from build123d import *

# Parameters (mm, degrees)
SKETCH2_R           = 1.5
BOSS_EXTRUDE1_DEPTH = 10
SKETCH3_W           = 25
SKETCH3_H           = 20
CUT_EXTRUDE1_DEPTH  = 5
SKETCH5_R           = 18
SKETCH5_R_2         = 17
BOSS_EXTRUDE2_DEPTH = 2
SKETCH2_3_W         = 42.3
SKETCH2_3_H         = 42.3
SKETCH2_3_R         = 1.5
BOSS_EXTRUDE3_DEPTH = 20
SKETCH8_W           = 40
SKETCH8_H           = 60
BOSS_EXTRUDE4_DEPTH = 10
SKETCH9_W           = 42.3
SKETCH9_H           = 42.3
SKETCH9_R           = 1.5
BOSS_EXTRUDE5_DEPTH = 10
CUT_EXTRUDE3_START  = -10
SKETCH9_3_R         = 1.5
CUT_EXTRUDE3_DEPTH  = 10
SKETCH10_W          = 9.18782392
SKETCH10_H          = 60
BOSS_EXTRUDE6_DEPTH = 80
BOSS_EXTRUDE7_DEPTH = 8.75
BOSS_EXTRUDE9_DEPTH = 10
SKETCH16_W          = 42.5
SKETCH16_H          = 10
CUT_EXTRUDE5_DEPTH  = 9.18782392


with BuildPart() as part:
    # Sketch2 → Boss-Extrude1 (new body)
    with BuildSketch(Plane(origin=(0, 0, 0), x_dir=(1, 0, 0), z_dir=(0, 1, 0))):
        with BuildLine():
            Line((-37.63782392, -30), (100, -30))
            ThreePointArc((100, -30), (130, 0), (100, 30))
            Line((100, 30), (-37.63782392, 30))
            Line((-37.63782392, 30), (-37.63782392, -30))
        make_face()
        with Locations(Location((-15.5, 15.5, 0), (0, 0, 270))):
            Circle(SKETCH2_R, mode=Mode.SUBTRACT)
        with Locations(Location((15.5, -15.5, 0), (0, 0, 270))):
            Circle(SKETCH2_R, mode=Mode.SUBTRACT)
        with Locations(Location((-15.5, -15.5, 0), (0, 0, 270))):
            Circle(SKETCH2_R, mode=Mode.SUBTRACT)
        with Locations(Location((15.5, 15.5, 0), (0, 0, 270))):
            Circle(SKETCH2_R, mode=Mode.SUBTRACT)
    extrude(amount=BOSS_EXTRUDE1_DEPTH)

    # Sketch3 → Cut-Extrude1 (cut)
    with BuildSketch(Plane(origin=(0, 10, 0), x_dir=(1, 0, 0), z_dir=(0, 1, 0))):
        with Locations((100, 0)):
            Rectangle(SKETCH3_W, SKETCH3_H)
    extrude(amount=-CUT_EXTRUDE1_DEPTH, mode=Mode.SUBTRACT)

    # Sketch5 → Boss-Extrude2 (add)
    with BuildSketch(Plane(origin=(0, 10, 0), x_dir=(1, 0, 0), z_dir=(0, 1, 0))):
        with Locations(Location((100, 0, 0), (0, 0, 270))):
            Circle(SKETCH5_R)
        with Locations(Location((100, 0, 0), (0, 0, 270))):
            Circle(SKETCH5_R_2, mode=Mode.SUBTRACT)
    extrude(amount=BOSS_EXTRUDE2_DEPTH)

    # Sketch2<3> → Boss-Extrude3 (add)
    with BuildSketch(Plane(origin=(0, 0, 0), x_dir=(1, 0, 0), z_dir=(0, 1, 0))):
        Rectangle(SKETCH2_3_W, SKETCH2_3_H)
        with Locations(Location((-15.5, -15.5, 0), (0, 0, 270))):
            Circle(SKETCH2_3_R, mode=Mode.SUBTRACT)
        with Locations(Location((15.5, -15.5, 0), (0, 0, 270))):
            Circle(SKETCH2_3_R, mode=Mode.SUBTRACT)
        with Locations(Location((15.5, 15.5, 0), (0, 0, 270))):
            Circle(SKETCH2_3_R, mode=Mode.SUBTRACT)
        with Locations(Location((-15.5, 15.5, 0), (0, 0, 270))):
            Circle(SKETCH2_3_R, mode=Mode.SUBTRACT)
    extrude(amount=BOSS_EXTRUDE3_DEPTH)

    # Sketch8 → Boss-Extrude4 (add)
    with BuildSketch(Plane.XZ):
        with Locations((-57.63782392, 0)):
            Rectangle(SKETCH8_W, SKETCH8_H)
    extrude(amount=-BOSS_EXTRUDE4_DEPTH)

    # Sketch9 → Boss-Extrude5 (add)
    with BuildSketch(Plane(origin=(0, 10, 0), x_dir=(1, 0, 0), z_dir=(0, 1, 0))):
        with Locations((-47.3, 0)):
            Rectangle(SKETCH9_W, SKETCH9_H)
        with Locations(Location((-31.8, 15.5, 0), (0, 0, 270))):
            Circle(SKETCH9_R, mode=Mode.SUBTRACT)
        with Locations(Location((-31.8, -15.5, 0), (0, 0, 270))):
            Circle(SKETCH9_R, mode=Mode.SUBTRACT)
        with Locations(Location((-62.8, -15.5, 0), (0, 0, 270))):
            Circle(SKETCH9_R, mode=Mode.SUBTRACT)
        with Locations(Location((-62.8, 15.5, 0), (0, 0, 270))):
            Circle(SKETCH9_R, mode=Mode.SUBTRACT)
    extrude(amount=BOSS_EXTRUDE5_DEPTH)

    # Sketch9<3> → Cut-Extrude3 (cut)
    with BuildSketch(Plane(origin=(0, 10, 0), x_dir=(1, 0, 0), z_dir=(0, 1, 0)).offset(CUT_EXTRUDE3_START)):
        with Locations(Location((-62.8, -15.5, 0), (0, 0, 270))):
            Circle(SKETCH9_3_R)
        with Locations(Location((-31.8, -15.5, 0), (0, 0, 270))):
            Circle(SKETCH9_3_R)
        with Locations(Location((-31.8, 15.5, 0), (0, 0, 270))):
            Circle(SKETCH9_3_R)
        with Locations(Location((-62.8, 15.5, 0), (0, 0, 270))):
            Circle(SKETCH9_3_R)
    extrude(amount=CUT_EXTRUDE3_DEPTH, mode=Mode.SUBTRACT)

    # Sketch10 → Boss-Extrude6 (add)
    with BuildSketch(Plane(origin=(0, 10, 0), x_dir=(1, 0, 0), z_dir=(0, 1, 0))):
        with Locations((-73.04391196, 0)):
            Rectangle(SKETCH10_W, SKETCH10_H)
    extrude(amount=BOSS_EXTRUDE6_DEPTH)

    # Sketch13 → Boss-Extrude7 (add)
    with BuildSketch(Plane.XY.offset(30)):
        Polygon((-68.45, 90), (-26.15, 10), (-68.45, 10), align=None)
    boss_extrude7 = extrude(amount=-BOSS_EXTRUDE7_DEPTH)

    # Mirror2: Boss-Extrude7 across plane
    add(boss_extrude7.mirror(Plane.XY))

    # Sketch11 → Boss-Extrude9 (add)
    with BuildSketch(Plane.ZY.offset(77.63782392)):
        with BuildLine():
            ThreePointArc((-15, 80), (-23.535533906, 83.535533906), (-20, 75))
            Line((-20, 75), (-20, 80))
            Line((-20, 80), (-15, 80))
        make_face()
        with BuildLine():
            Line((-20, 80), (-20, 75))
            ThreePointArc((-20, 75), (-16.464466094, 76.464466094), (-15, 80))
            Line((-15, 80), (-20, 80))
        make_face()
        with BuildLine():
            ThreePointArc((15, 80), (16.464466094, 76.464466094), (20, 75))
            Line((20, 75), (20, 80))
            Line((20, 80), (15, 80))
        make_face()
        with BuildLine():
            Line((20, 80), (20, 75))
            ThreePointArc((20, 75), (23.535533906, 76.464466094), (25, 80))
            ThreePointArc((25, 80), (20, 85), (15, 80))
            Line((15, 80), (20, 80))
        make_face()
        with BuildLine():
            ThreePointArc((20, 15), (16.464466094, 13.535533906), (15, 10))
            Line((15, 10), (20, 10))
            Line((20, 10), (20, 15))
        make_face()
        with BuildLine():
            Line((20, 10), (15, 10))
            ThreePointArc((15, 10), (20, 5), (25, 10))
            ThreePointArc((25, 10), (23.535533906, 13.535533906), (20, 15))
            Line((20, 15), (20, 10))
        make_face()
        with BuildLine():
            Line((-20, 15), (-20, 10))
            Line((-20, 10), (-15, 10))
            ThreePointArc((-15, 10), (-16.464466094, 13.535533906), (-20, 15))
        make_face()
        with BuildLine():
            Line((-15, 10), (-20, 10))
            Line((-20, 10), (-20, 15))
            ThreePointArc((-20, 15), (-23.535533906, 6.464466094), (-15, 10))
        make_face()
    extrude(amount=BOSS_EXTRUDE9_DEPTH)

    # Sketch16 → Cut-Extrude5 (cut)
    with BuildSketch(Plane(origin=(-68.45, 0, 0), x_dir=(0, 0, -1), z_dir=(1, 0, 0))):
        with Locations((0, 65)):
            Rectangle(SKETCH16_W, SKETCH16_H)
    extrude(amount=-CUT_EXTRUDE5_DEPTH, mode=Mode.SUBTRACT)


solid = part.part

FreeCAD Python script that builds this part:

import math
import FreeCAD as App
import Part
import Sketcher
from FreeCAD import Vector
Q = App.Units.Quantity


def add_polygon(sketch, points):
    """Adds a closed chain of lines whose ends are joined by coincident constraints."""
    first, n = sketch.GeometryCount, len(points)
    for a, b in zip(points, points[1:] + points[:1]):
        sketch.addGeometry(Part.LineSegment(App.Vector(*a, 0), App.Vector(*b, 0)), False)
    for i in range(n):
        sketch.addConstraint(Sketcher.Constraint("Coincident", first + i, 2, first + (i + 1) % n, 1))

doc = App.newDocument("Part")
params = doc.addObject("Spreadsheet::Sheet", "Params")
for row, (alias, value) in enumerate([
    ("sketch1_diameter", "3 mm"),
    ("sketch1_radius", "30 mm"),
    ("pad1_length", "10 mm"),
    ("sketch2_width", "25 mm"),
    ("sketch2_height", "20 mm"),
    ("pocket1_length", "5 mm"),
    ("sketch3_diameter", "36 mm"),
    ("sketch3_diameter2", "34 mm"),
    ("pad2_length", "2 mm"),
    ("sketch4_diameter", "3 mm"),
    ("sketch4_width", "42.3 mm"),
    ("pad3_length", "20 mm"),
    ("sketch5_width", "40 mm"),
    ("sketch5_height", "60 mm"),
    ("pad4_length", "10 mm"),
    ("sketch6_diameter", "3 mm"),
    ("sketch6_width", "42.3 mm"),
    ("pad5_length", "10 mm"),
    ("sketch7_diameter", "3 mm"),
    ("pocket2_length", "10 mm"),
    ("sketch8_height", "60 mm"),
    ("pad6_length", "80 mm"),
    ("sketch9_height", "80 mm"),
    ("sketch9_width", "42.3 mm"),
    ("pad7_length", "8.75 mm"),
    ("sketch10_radius", "5 mm"),
    ("pad8_length", "10 mm"),
    ("sketch11_width", "10 mm"),
    ("sketch11_height", "42.5 mm"),
    ("pocket3_length", "9.187824 mm"),
], start=1):
    params.set(f"A{row}", alias)
    params.set(f"B{row}", "=" + value)
    params.setAlias(f"B{row}", alias)

body = doc.addObject("PartDesign::Body", "Body")

# Sketch on XZ plane
sketch1 = body.newObject("Sketcher::SketchObject", "Sketch")
sketch1.AttachmentSupport = (doc.getObject("XZ_Plane"), [""])
sketch1.MapMode = "FlatFace"
sketch1.addGeometry([
    Part.LineSegment(Vector(-37.6, 30, 0), Vector(100, 30, 0)),  # 0
    Part.ArcOfCircle(Part.Circle(Vector(100, 0, 0), Vector(0, 0, 1), 30), math.radians(-90), math.radians(90)),  # 1
    Part.LineSegment(Vector(100, -30, 0), Vector(-37.6, -30, 0)),  # 2
    Part.LineSegment(Vector(-37.6, -30, 0), Vector(-37.6, 30, 0)),  # 3
    Part.Circle(Vector(-15.5, 15.5, 0), Vector(0, 0, 1), 1.5),  # 4
    Part.Circle(Vector(15.5, 15.5, 0), Vector(0, 0, 1), 1.5),  # 5
    Part.Circle(Vector(-15.5, -15.5, 0), Vector(0, 0, 1), 1.5),  # 6
    Part.Circle(Vector(15.5, -15.5, 0), Vector(0, 0, 1), 1.5),  # 7
], False)
sketch1.addConstraint([
    Sketcher.Constraint("Tangent", 0, 2, 1, 2),
    Sketcher.Constraint("Tangent", 1, 1, 2, 1),
    Sketcher.Constraint("Coincident", 2, 2, 3, 1),
    Sketcher.Constraint("Coincident", 3, 2, 0, 1),
    Sketcher.Constraint("Horizontal", 0),
    Sketcher.Constraint("Horizontal", 2),
    Sketcher.Constraint("Vertical", 3),
    Sketcher.Constraint("Equal", 4, 5),
    Sketcher.Constraint("Equal", 5, 6),
    Sketcher.Constraint("Equal", 6, 7),
    Sketcher.Constraint("Symmetric", 5, 3, 6, 3, -1, 1),
    Sketcher.Constraint("Symmetric", 4, 3, 7, 3, -1, 1),
    Sketcher.Constraint("Symmetric", 4, 3, 5, 3, -2),
    Sketcher.Constraint("PointOnObject", 1, 3, -1),
    Sketcher.Constraint("Diameter", 4, Q("3 mm")),
    Sketcher.Constraint("Radius", 1, Q("30 mm")),
    Sketcher.Constraint("DistanceX", -1, 1, 1, 3, Q("100 mm")),
    Sketcher.Constraint("DistanceX", 4, 3, 5, 3, Q("31 mm")),
    Sketcher.Constraint("DistanceY", 6, 3, 4, 3, Q("31 mm")),
    Sketcher.Constraint("DistanceX", 0, 1, 0, 2, Q("137.637824 mm")),
])
sketch1.setExpression("Constraints[14]", "Params.sketch1_diameter")
sketch1.setExpression("Constraints[15]", "Params.sketch1_radius")
pad1 = body.newObject("PartDesign::Pad", "Pad")
pad1.Profile = sketch1
pad1.setExpression("Length", "Params.pad1_length")
pad1.Reversed = True

# Sketch on XZ plane
sketch2 = body.newObject("Sketcher::SketchObject", "Sketch001")
sketch2.AttachmentSupport = (doc.getObject("XZ_Plane"), [""])
sketch2.MapMode = "FlatFace"
sketch2.AttachmentOffset = App.Placement(Vector(0, 0, -10), App.Rotation())
add_polygon(sketch2, [(88, -10), (88, 10), (112, 10), (112, -10)])  # lines 0-3
sketch2.addConstraint([
    Sketcher.Constraint("Vertical", 0),
    Sketcher.Constraint("Horizontal", 1),
    Sketcher.Constraint("Vertical", 2),
    Sketcher.Constraint("Horizontal", 3),
    Sketcher.Constraint("DistanceX", 1, 1, 1, 2, Q("25 mm")),
    Sketcher.Constraint("DistanceY", 0, 1, 0, 2, Q("20 mm")),
    Sketcher.Constraint("DistanceY", -1, 1, 0, 2, Q("10 mm")),
    Sketcher.Constraint("DistanceX", -1, 1, 0, 2, Q("87.5 mm")),
])
sketch2.setExpression("Constraints[8]", "Params.sketch2_width")
sketch2.setExpression("Constraints[9]", "Params.sketch2_height")
pocket1 = body.newObject("PartDesign::Pocket", "Pocket")
pocket1.Profile = sketch2
pocket1.setExpression("Length", "Params.pocket1_length")
pocket1.Reversed = True

# Sketch on XZ plane
sketch3 = body.newObject("Sketcher::SketchObject", "Sketch002")
sketch3.AttachmentSupport = (doc.getObject("XZ_Plane"), [""])
sketch3.MapMode = "FlatFace"
sketch3.AttachmentOffset = App.Placement(Vector(0, 0, -10), App.Rotation())
sketch3.addGeometry([
    Part.Circle(Vector(100, 0, 0), Vector(0, 0, 1), 18),
    Part.Circle(Vector(100, 0, 0), Vector(0, 0, 1), 17),
], False)
sketch3.addConstraint([
    Sketcher.Constraint("Coincident", 1, 3, 0, 3),
    Sketcher.Constraint("PointOnObject", 0, 3, -1),
    Sketcher.Constraint("Diameter", 0, Q("36 mm")),
    Sketcher.Constraint("Diameter", 1, Q("34 mm")),
    Sketcher.Constraint("DistanceX", -1, 1, 0, 3, Q("100 mm")),
])
sketch3.setExpression("Constraints[2]", "Params.sketch3_diameter")
sketch3.setExpression("Constraints[3]", "Params.sketch3_diameter2")
pad2 = body.newObject("PartDesign::Pad", "Pad001")
pad2.Profile = sketch3
pad2.setExpression("Length", "Params.pad2_length")
pad2.Reversed = True

# Sketch on XZ plane
sketch4 = body.newObject("Sketcher::SketchObject", "Sketch003")
sketch4.AttachmentSupport = (doc.getObject("XZ_Plane"), [""])
sketch4.MapMode = "FlatFace"
add_polygon(sketch4, [(-21.1, -21.1), (-21.1, 21.1), (21.1, 21.1), (21.1, -21.1)])  # lines 0-3
sketch4.addGeometry(Part.Circle(Vector(-15.5, 15.5, 0), Vector(0, 0, 1), 1.5), False)  # 4
sketch4.addGeometry(Part.Circle(Vector(15.5, 15.5, 0), Vector(0, 0, 1), 1.5), False)  # 5
sketch4.addGeometry(Part.Circle(Vector(-15.5, -15.5, 0), Vector(0, 0, 1), 1.5), False)  # 6
sketch4.addGeometry(Part.Circle(Vector(15.5, -15.5, 0), Vector(0, 0, 1), 1.5), False)  # 7
sketch4.addConstraint([
    Sketcher.Constraint("Vertical", 0),
    Sketcher.Constraint("Horizontal", 1),
    Sketcher.Constraint("Vertical", 2),
    Sketcher.Constraint("Horizontal", 3),
    Sketcher.Constraint("Equal", 4, 5),
    Sketcher.Constraint("Equal", 5, 6),
    Sketcher.Constraint("Equal", 6, 7),
    Sketcher.Constraint("Symmetric", 5, 3, 6, 3, -1, 1),
    Sketcher.Constraint("Symmetric", 4, 3, 7, 3, -1, 1),
    Sketcher.Constraint("Symmetric", 0, 2, 2, 2, -1, 1),
    Sketcher.Constraint("Symmetric", 4, 3, 5, 3, -2),
    Sketcher.Constraint("Equal", 3, 0),
    Sketcher.Constraint("Diameter", 4, Q("3 mm")),
    Sketcher.Constraint("DistanceX", 1, 1, 1, 2, Q("42.3 mm")),
    Sketcher.Constraint("DistanceX", 4, 3, 5, 3, Q("31 mm")),
    Sketcher.Constraint("DistanceY", 6, 3, 4, 3, Q("31 mm")),
])
sketch4.setExpression("Constraints[16]", "Params.sketch4_diameter")
sketch4.setExpression("Constraints[17]", "Params.sketch4_width")
pad3 = body.newObject("PartDesign::Pad", "Pad002")
pad3.Profile = sketch4
pad3.setExpression("Length", "Params.pad3_length")
pad3.Reversed = True

# Sketch on XZ plane
sketch5 = body.newObject("Sketcher::SketchObject", "Sketch004")
sketch5.AttachmentSupport = (doc.getObject("XZ_Plane"), [""])
sketch5.MapMode = "FlatFace"
add_polygon(sketch5, [(-78, 30), (-78, -30), (-38, -30), (-38, 30)])  # lines 0-3
sketch5.addConstraint([
    Sketcher.Constraint("Vertical", 0),
    Sketcher.Constraint("Horizontal", 1),
    Sketcher.Constraint("Vertical", 2),
    Sketcher.Constraint("Horizontal", 3),
    Sketcher.Constraint("DistanceX", 1, 1, 1, 2, Q("40 mm")),
    Sketcher.Constraint("DistanceY", 0, 2, 0, 1, Q("60 mm")),
    Sketcher.Constraint("DistanceY", 0, 2, -1, 1, Q("30 mm")),
    Sketcher.Constraint("DistanceX", 0, 2, -1, 1, Q("77.637824 mm")),
])
sketch5.setExpression("Constraints[8]", "Params.sketch5_width")
sketch5.setExpression("Constraints[9]", "Params.sketch5_height")
pad4 = body.newObject("PartDesign::Pad", "Pad003")
pad4.Profile = sketch5
pad4.setExpression("Length", "Params.pad4_length")
pad4.Reversed = True

# Sketch on XZ plane
sketch6 = body.newObject("Sketcher::SketchObject", "Sketch005")
sketch6.AttachmentSupport = (doc.getObject("XZ_Plane"), [""])
sketch6.MapMode = "FlatFace"
sketch6.AttachmentOffset = App.Placement(Vector(0, 0, -10), App.Rotation())
add_polygon(sketch6, [(-68.5, -21.1), (-68.5, 21.1), (-26.1, 21.1), (-26.1, -21.1)])  # lines 0-3
sketch6.addGeometry(Part.Circle(Vector(-62.8, 15.5, 0), Vector(0, 0, 1), 1.5), False)  # 4
sketch6.addGeometry(Part.Circle(Vector(-31.8, 15.5, 0), Vector(0, 0, 1), 1.5), False)  # 5
sketch6.addGeometry(Part.Circle(Vector(-62.8, -15.5, 0), Vector(0, 0, 1), 1.5), False)  # 6
sketch6.addGeometry(Part.Circle(Vector(-31.8, -15.5, 0), Vector(0, 0, 1), 1.5), False)  # 7
sketch6.addConstraint([
    Sketcher.Constraint("Vertical", 0),
    Sketcher.Constraint("Horizontal", 1),
    Sketcher.Constraint("Vertical", 2),
    Sketcher.Constraint("Horizontal", 3),
    Sketcher.Constraint("Equal", 4, 5),
    Sketcher.Constraint("Equal", 5, 6),
    Sketcher.Constraint("Equal", 6, 7),
    Sketcher.Constraint("Symmetric", 4, 3, 6, 3, -1),
    Sketcher.Constraint("Symmetric", 5, 3, 7, 3, -1),
    Sketcher.Constraint("Horizontal", 4, 3, 5, 3),
    Sketcher.Constraint("Equal", 3, 0),
    Sketcher.Constraint("Diameter", 4, Q("3 mm")),
    Sketcher.Constraint("DistanceX", 1, 1, 1, 2, Q("42.3 mm")),
    Sketcher.Constraint("DistanceX", 4, 3, 5, 3, Q("31 mm")),
    Sketcher.Constraint("DistanceY", 6, 3, 4, 3, Q("31 mm")),
    Sketcher.Constraint("DistanceX", 4, 3, -1, 1, Q("62.8 mm")),
    Sketcher.Constraint("DistanceX", 0, 2, -1, 1, Q("68.45 mm")),
    Sketcher.Constraint("DistanceY", -1, 1, 0, 2, Q("21.15 mm")),
])
sketch6.setExpression("Constraints[15]", "Params.sketch6_diameter")
sketch6.setExpression("Constraints[16]", "Params.sketch6_width")
pad5 = body.newObject("PartDesign::Pad", "Pad004")
pad5.Profile = sketch6
pad5.setExpression("Length", "Params.pad5_length")
pad5.Reversed = True

# Sketch on XZ plane
sketch7 = body.newObject("Sketcher::SketchObject", "Sketch006")
sketch7.AttachmentSupport = (doc.getObject("XZ_Plane"), [""])
sketch7.MapMode = "FlatFace"
sketch7.addGeometry([
    Part.Circle(Vector(-62.8, 15.5, 0), Vector(0, 0, 1), 1.5),
    Part.Circle(Vector(-31.8, 15.5, 0), Vector(0, 0, 1), 1.5),
    Part.Circle(Vector(-31.8, -15.5, 0), Vector(0, 0, 1), 1.5),
    Part.Circle(Vector(-62.8, -15.5, 0), Vector(0, 0, 1), 1.5),
], False)
sketch7.addConstraint([
    Sketcher.Constraint("Equal", 0, 1),
    Sketcher.Constraint("Equal", 1, 2),
    Sketcher.Constraint("Equal", 2, 3),
    Sketcher.Constraint("Symmetric", 1, 3, 2, 3, -1),
    Sketcher.Constraint("Symmetric", 0, 3, 3, 3, -1),
    Sketcher.Constraint("Horizontal", 0, 3, 1, 3),
    Sketcher.Constraint("Diameter", 0, Q("3 mm")),
    Sketcher.Constraint("DistanceX", 0, 3, 1, 3, Q("31 mm")),
    Sketcher.Constraint("DistanceY", 2, 3, 1, 3, Q("31 mm")),
    Sketcher.Constraint("DistanceX", 0, 3, -1, 1, Q("62.8 mm")),
])
sketch7.setExpression("Constraints[6]", "Params.sketch7_diameter")
pocket2 = body.newObject("PartDesign::Pocket", "Pocket001")
pocket2.Profile = sketch7
pocket2.setExpression("Length", "Params.pocket2_length")

# Sketch on XZ plane
sketch8 = body.newObject("Sketcher::SketchObject", "Sketch007")
sketch8.AttachmentSupport = (doc.getObject("XZ_Plane"), [""])
sketch8.MapMode = "FlatFace"
sketch8.AttachmentOffset = App.Placement(Vector(0, 0, -10), App.Rotation())
add_polygon(sketch8, [(-78, -30), (-78, 30), (-68, 30), (-68, -30)])  # lines 0-3
sketch8.addConstraint([
    Sketcher.Constraint("Vertical", 0),
    Sketcher.Constraint("Horizontal", 1),
    Sketcher.Constraint("Vertical", 2),
    Sketcher.Constraint("Horizontal", 3),
    Sketcher.Constraint("DistanceY", 0, 1, 0, 2, Q("60 mm")),
    Sketcher.Constraint("DistanceY", -1, 1, 0, 2, Q("30 mm")),
    Sketcher.Constraint("DistanceX", 1, 2, -1, 1, Q("68.45 mm")),
    Sketcher.Constraint("DistanceX", 1, 1, 1, 2, Q("9.187824 mm")),
])
sketch8.setExpression("Constraints[8]", "Params.sketch8_height")
pad6 = body.newObject("PartDesign::Pad", "Pad005")
pad6.Profile = sketch8
pad6.setExpression("Length", "Params.pad6_length")
pad6.Reversed = True

# Sketch on XY plane
sketch9 = body.newObject("Sketcher::SketchObject", "Sketch008")
sketch9.AttachmentSupport = (doc.getObject("XY_Plane"), [""])
sketch9.MapMode = "FlatFace"
sketch9.AttachmentOffset = App.Placement(Vector(0, 0, 30), App.Rotation())
add_polygon(sketch9, [(-26, 10), (-68, 90), (-68, 10)])  # lines 0-2
sketch9.addConstraint([
    Sketcher.Constraint("Vertical", 1),
    Sketcher.Constraint("Horizontal", 2),
    Sketcher.Constraint("DistanceY", 1, 2, 1, 1, Q("80 mm")),
    Sketcher.Constraint("DistanceX", 2, 1, 2, 2, Q("42.3 mm")),
    Sketcher.Constraint("DistanceY", -1, 1, 0, 2, Q("90 mm")),
    Sketcher.Constraint("DistanceX", 0, 2, -1, 1, Q("68.45 mm")),
])
sketch9.setExpression("Constraints[5]", "Params.sketch9_height")
sketch9.setExpression("Constraints[6]", "Params.sketch9_width")
pad7 = body.newObject("PartDesign::Pad", "Pad006")
pad7.Profile = sketch9
pad7.setExpression("Length", "Params.pad7_length")
pad7.Reversed = True
doc.recompute()

mirrored = body.newObject("PartDesign::Mirrored", "Mirrored")
mirrored.Originals = [pad7]
mirrored.MirrorPlane = (doc.getObject("XY_Plane"), [""])
body.Tip = mirrored

# Sketch on YZ plane
sketch10 = body.newObject("Sketcher::SketchObject", "Sketch009")
sketch10.AttachmentSupport = (doc.getObject("YZ_Plane"), [""])
sketch10.MapMode = "FlatFace"
sketch10.AttachmentOffset = App.Placement(Vector(0, 0, -77.637824), App.Rotation())
sketch10.addGeometry([
    Part.ArcOfCircle(Part.Circle(Vector(80, -20, 0), Vector(0, 0, 1), 5), math.radians(180), math.radians(450)),  # 0
    Part.ArcOfCircle(Part.Circle(Vector(80, -20, 0), Vector(0, 0, 1), 5), math.radians(90), math.radians(180)),  # 1
    Part.ArcOfCircle(Part.Circle(Vector(80, 20, 0), Vector(0, 0, 1), 5), math.radians(180), math.radians(270)),  # 2
    Part.ArcOfCircle(Part.Circle(Vector(80, 20, 0), Vector(0, 0, 1), 5), math.radians(90), math.radians(180)),  # 3
    Part.ArcOfCircle(Part.Circle(Vector(80, 20, 0), Vector(0, 0, 1), 5), math.radians(-90), math.radians(90)),  # 4
    Part.ArcOfCircle(Part.Circle(Vector(10, 20, 0), Vector(0, 0, 1), 5), math.radians(-90), math.radians(0)),  # 5
    Part.ArcOfCircle(Part.Circle(Vector(10, 20, 0), Vector(0, 0, 1), 5), math.radians(90), math.radians(270)),  # 6
    Part.ArcOfCircle(Part.Circle(Vector(10, 20, 0), Vector(0, 0, 1), 5), math.radians(0), math.radians(90)),  # 7
    Part.ArcOfCircle(Part.Circle(Vector(10, -20, 0), Vector(0, 0, 1), 5), math.radians(0), math.radians(90)),  # 8
    Part.ArcOfCircle(Part.Circle(Vector(10, -20, 0), Vector(0, 0, 1), 5), math.radians(90), math.radians(360)),  # 9
], False)
sketch10.addConstraint([
    Sketcher.Constraint("Tangent", 0, 1, 1, 2),
    Sketcher.Constraint("Coincident", 1, 1, 0, 2),
    Sketcher.Constraint("Tangent", 2, 1, 3, 2),
    Sketcher.Constraint("Tangent", 3, 1, 4, 2),
    Sketcher.Constraint("Tangent", 4, 1, 2, 2),
    Sketcher.Constraint("Tangent", 5, 1, 6, 2),
    Sketcher.Constraint("Tangent", 6, 1, 7, 2),
    Sketcher.Constraint("Tangent", 7, 1, 5, 2),
    Sketcher.Constraint("Tangent", 8, 1, 9, 2),
    Sketcher.Constraint("Coincident", 9, 1, 8, 2),
    Sketcher.Constraint("Equal", 1, 2),
    Sketcher.Constraint("Equal", 4, 5),
    Sketcher.Constraint("Equal", 7, 8),
    Sketcher.Constraint("Symmetric", 0, 3, 2, 3, -1),
    Sketcher.Constraint("Symmetric", 5, 3, 8, 3, -1),
    Sketcher.Constraint("Horizontal", 4, 3, 5, 3),
    Sketcher.Constraint("Horizontal", 9, 3, 0, 1),
    Sketcher.Constraint("Horizontal", 7, 3, 2, 1),
    Sketcher.Constraint("Horizontal", 2, 1, 7, 1),
    Sketcher.Constraint("Horizontal", 0, 1, 8, 1),
    Sketcher.Constraint("Vertical", 4, 3, 1, 1),
    Sketcher.Constraint("Vertical", 1, 1, 3, 1),
    Sketcher.Constraint("Vertical", 3, 1, 4, 1),
    Sketcher.Constraint("Vertical", 9, 3, 5, 1),
    Sketcher.Constraint("Vertical", 5, 1, 6, 1),
    Sketcher.Constraint("Vertical", 6, 1, 9, 1),
    Sketcher.Constraint("Radius", 0, Q("5 mm")),
    Sketcher.Constraint("DistanceX", -1, 1, 0, 3, Q("80 mm")),
    Sketcher.Constraint("DistanceY", 0, 3, -1, 1, Q("20 mm")),
    Sketcher.Constraint("DistanceX", -1, 1, 5, 3, Q("10 mm")),
])
sketch10.setExpression("Constraints[26]", "Params.sketch10_radius")
pad8 = body.newObject("PartDesign::Pad", "Pad007")
pad8.Profile = sketch10
pad8.setExpression("Length", "Params.pad8_length")
pad8.Reversed = True

# Sketch on YZ plane
sketch11 = body.newObject("Sketcher::SketchObject", "Sketch010")
sketch11.AttachmentSupport = (doc.getObject("YZ_Plane"), [""])
sketch11.MapMode = "FlatFace"
sketch11.AttachmentOffset = App.Placement(Vector(0, 0, -68.45), App.Rotation())
add_polygon(sketch11, [(70, 21), (60, 21), (60, -21), (70, -21)])  # lines 0-3
sketch11.addConstraint([
    Sketcher.Constraint("Horizontal", 0),
    Sketcher.Constraint("Vertical", 1),
    Sketcher.Constraint("Horizontal", 2),
    Sketcher.Constraint("Vertical", 3),
    Sketcher.Constraint("DistanceX", 0, 2, 0, 1, Q("10 mm")),
    Sketcher.Constraint("DistanceY", 1, 2, 1, 1, Q("42.5 mm")),
    Sketcher.Constraint("DistanceX", -1, 1, 0, 2, Q("60 mm")),
    Sketcher.Constraint("DistanceY", -1, 1, 0, 2, Q("21.25 mm")),
])
sketch11.setExpression("Constraints[8]", "Params.sketch11_width")
sketch11.setExpression("Constraints[9]", "Params.sketch11_height")
pocket3 = body.newObject("PartDesign::Pocket", "Pocket002")
pocket3.Profile = sketch11
pocket3.setExpression("Length", "Params.pocket3_length")

doc.recompute()
